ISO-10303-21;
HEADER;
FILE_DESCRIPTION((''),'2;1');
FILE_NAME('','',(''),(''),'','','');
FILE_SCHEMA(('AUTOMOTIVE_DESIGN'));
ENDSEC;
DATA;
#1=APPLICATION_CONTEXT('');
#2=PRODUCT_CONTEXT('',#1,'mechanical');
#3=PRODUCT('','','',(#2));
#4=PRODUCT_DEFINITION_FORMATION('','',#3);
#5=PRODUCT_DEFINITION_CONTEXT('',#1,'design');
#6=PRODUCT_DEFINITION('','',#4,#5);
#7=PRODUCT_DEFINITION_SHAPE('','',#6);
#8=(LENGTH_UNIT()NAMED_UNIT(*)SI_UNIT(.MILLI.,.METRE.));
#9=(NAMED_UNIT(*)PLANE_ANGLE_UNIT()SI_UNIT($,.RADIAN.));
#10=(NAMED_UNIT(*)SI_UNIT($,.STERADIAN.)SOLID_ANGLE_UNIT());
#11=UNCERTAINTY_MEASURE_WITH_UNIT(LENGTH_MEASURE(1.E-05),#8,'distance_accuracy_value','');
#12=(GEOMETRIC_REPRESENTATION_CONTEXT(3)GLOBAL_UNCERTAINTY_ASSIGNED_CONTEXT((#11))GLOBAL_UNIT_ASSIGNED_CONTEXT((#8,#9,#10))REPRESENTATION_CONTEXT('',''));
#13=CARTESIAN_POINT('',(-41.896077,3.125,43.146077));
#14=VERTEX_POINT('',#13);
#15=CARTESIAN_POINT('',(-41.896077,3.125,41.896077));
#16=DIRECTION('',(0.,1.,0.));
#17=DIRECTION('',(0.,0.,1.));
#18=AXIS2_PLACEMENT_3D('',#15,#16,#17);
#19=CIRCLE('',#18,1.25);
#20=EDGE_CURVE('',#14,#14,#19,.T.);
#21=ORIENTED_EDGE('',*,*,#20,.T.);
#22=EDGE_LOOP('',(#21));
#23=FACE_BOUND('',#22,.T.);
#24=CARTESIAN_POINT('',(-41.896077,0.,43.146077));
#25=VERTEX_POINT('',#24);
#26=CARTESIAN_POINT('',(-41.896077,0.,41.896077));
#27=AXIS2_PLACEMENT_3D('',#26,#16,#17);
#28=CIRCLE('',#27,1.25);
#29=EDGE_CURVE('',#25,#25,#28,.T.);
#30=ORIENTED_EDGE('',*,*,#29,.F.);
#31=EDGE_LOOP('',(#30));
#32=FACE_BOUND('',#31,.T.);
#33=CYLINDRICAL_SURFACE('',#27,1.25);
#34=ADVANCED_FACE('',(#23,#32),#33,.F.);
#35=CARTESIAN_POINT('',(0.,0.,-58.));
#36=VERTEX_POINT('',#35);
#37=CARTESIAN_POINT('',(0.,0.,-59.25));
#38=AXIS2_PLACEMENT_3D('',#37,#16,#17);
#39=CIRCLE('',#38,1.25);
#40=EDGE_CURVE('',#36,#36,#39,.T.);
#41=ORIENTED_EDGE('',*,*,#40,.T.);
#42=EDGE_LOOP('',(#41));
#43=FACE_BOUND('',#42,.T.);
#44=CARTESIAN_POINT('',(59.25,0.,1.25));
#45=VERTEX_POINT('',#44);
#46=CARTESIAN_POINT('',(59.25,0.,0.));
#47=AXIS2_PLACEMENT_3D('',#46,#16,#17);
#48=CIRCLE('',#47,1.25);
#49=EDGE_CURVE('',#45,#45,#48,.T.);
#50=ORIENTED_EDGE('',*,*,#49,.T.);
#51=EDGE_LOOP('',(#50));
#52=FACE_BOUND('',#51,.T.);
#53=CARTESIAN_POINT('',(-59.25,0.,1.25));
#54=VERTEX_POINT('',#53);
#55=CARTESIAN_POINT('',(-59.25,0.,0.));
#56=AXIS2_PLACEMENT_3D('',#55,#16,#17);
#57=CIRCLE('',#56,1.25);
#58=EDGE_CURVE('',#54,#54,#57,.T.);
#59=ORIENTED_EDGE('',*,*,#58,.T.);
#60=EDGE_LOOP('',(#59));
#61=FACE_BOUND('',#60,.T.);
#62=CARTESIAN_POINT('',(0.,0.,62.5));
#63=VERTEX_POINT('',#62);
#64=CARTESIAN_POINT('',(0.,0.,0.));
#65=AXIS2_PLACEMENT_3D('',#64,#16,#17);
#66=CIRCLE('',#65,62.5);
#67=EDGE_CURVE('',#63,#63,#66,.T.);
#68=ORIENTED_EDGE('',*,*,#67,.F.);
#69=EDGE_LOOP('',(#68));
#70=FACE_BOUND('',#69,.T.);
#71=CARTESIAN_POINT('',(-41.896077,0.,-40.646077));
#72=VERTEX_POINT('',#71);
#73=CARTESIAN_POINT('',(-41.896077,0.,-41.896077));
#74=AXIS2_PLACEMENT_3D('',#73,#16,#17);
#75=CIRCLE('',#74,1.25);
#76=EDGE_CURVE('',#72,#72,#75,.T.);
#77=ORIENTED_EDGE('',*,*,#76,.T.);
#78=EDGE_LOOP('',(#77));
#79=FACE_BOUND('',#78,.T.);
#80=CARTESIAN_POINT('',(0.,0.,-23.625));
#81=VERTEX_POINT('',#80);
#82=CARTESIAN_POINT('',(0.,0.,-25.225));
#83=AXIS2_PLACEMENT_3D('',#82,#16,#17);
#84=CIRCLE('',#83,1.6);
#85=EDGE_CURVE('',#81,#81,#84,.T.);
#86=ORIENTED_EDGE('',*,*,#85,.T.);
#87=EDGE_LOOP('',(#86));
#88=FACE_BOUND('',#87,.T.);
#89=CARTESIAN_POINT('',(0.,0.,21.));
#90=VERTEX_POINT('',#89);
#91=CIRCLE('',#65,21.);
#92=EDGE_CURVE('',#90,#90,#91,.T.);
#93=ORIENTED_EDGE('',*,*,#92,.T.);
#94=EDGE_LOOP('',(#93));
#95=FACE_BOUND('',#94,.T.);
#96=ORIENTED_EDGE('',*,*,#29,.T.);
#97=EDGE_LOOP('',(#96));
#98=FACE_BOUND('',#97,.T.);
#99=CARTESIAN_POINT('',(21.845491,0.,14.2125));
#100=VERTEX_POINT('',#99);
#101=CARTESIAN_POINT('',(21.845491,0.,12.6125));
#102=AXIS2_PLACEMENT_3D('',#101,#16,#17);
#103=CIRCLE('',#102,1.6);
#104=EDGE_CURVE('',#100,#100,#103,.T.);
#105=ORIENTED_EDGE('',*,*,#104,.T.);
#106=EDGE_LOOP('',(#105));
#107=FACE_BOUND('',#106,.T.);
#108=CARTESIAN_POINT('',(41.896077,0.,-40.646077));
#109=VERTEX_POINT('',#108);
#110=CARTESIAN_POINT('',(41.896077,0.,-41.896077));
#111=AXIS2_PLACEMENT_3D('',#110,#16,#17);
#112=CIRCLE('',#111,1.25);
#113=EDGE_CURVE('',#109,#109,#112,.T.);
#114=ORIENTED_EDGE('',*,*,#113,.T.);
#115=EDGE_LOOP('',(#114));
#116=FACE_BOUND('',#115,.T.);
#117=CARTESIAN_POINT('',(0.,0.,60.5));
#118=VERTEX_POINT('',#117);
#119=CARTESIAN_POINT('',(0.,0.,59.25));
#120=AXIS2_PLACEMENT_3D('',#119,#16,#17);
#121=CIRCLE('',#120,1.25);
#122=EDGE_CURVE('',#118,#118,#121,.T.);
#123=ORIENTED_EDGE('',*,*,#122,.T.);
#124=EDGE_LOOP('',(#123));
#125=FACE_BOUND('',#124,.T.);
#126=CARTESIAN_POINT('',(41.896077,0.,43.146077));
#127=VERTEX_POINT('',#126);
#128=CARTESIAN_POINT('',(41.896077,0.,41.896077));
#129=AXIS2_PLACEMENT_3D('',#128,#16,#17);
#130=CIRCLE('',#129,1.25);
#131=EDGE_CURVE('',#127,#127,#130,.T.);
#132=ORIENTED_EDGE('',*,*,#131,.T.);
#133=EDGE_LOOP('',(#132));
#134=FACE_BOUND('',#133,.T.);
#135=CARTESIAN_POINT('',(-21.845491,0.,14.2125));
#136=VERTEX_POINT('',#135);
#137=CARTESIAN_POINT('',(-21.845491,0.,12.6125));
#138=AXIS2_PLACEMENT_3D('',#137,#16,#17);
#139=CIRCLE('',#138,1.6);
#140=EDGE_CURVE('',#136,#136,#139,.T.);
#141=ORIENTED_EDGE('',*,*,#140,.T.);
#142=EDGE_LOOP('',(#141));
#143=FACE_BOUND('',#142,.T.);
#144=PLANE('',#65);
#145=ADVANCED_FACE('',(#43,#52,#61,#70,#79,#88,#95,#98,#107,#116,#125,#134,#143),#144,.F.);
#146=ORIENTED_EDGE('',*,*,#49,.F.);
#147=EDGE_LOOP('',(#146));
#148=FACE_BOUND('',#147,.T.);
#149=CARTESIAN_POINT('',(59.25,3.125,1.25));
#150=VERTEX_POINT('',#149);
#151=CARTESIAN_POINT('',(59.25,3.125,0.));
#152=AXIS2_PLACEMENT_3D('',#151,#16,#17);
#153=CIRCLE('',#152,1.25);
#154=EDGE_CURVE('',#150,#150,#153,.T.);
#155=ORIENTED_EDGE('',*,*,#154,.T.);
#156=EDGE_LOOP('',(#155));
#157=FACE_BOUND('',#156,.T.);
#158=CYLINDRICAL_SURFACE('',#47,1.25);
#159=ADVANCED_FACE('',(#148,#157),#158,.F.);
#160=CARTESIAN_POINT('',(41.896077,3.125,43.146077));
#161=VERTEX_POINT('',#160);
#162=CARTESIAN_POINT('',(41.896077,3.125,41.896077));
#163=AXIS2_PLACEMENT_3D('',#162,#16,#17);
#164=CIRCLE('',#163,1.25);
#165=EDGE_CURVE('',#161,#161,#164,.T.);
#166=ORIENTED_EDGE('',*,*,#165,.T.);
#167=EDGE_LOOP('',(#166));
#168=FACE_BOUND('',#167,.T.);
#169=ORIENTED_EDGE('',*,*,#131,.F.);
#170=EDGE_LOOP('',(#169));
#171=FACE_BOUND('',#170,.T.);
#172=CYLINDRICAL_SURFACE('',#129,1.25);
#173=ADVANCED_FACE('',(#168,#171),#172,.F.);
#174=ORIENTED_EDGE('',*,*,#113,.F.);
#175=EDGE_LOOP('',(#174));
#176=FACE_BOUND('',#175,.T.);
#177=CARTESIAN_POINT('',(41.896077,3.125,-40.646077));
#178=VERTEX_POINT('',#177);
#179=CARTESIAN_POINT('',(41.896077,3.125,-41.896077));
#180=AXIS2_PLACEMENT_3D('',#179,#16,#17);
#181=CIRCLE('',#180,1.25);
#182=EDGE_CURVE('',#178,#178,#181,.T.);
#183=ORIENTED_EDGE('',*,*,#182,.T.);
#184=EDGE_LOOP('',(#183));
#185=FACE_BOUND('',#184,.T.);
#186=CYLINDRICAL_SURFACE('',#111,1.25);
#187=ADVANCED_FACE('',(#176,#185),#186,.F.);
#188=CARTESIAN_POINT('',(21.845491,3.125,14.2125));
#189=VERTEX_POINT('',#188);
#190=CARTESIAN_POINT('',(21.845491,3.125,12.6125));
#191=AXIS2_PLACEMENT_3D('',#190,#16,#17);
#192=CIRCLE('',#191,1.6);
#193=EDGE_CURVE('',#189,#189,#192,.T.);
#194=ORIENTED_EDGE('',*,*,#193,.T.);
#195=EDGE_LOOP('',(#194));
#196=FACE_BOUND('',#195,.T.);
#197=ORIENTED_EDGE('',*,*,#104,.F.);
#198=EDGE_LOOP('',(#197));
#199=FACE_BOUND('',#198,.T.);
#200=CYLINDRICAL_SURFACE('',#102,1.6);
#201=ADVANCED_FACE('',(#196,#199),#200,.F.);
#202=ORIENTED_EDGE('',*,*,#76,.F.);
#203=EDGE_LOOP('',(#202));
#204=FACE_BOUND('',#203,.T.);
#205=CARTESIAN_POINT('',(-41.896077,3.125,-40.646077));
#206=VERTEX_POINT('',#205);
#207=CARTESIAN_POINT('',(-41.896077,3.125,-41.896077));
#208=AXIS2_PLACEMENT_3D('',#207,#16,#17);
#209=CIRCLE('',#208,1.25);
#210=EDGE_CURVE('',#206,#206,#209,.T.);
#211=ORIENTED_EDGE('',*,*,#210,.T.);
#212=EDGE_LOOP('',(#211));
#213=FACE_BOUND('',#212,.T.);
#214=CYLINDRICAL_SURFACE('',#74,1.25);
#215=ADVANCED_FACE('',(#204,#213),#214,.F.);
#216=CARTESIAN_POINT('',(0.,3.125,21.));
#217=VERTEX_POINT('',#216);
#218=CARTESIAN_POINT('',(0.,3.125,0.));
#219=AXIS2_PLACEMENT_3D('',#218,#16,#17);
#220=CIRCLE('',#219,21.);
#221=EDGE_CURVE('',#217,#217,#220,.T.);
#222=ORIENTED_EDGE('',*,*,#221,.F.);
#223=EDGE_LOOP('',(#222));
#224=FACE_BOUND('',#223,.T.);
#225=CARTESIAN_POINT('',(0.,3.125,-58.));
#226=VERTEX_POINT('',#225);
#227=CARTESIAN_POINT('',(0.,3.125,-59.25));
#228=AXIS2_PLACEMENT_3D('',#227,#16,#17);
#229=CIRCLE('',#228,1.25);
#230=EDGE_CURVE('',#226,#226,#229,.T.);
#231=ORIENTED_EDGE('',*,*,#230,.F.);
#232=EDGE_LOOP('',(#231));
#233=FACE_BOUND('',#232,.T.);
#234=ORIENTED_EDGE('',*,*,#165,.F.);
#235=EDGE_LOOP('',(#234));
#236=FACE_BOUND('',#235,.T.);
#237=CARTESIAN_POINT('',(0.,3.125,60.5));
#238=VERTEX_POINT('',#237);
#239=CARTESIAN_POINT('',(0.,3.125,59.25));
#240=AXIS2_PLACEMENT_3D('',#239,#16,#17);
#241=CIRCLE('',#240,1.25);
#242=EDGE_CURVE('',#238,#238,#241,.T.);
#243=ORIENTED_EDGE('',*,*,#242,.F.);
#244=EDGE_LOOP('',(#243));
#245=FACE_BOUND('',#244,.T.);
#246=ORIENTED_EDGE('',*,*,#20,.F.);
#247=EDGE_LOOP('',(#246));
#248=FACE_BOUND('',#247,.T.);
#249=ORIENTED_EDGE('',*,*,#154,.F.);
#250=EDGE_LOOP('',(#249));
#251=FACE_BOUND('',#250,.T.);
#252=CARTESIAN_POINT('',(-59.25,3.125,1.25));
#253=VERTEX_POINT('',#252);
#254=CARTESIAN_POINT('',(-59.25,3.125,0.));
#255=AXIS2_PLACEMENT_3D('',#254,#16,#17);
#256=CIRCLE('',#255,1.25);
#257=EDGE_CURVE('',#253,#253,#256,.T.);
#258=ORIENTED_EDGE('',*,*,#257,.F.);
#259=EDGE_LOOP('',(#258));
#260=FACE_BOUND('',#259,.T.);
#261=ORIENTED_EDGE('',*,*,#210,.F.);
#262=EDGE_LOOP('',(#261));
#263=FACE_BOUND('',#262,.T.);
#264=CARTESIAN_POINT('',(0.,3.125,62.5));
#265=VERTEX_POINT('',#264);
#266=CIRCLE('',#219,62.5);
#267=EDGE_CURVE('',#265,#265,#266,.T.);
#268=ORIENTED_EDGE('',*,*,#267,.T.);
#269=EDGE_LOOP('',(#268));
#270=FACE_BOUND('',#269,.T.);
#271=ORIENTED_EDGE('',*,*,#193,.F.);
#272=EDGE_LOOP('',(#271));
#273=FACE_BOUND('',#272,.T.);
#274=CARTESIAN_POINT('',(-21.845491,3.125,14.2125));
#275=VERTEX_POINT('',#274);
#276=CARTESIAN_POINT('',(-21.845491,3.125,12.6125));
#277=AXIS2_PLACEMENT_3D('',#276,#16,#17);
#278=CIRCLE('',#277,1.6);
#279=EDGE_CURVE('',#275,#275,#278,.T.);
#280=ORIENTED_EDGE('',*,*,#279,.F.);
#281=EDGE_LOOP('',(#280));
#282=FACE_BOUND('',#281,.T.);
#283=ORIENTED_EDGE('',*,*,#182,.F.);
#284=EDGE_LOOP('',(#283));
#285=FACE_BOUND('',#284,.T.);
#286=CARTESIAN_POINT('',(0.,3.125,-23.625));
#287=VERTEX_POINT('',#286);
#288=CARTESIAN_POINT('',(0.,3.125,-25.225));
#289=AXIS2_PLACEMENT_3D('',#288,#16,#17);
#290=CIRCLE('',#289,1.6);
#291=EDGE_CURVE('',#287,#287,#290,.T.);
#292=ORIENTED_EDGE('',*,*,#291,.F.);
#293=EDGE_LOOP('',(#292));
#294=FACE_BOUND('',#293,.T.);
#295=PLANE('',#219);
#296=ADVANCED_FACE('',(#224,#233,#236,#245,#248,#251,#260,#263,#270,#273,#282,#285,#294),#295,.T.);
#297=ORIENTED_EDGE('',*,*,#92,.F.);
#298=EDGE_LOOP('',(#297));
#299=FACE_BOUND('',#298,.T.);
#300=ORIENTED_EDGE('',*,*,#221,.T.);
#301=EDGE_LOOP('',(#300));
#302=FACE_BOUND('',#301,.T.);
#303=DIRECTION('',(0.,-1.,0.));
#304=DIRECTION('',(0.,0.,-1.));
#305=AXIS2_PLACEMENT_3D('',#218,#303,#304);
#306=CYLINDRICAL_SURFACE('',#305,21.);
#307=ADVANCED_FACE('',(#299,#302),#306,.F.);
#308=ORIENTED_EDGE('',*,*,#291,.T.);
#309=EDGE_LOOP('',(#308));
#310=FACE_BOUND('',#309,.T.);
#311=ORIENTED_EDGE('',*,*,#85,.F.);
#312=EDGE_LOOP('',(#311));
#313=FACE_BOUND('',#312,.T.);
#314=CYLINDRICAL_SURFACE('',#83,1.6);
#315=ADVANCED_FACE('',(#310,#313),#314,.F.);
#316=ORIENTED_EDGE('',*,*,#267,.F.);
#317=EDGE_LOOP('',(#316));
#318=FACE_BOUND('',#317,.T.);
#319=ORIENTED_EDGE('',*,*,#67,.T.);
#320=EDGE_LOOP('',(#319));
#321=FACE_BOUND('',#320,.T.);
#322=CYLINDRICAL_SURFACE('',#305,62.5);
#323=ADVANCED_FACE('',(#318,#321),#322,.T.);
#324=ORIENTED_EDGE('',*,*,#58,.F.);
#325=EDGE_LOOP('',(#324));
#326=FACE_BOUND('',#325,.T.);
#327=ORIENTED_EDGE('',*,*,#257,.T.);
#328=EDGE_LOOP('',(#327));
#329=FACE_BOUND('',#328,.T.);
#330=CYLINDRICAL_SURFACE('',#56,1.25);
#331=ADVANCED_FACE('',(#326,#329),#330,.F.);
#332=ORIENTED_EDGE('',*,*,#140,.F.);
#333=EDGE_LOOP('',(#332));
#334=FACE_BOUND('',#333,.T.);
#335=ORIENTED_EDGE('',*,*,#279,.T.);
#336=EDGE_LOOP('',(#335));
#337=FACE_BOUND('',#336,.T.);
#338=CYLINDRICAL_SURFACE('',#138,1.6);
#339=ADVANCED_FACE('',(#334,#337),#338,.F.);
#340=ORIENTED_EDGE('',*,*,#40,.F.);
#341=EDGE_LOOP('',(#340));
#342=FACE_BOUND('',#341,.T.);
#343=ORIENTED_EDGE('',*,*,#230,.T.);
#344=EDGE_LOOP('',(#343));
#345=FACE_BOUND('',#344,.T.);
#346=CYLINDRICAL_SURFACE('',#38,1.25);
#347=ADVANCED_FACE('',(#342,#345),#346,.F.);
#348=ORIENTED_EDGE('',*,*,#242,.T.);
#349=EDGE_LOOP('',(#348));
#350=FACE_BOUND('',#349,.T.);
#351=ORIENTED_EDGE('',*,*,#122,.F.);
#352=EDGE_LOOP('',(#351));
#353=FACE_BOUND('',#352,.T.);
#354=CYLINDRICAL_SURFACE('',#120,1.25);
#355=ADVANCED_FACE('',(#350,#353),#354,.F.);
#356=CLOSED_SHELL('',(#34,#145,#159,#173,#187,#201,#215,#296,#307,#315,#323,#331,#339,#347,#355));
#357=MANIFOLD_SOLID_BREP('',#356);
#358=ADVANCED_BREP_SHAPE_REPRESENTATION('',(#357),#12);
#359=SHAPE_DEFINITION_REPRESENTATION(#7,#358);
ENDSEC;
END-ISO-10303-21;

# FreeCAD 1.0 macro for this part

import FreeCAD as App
import Part
import Sketcher

V = App.Vector

doc = App.newDocument("Part")
body = doc.addObject("PartDesign::Body", "Body")

# Sketch on XZ plane
sketch1 = body.newObject("Sketcher::SketchObject", "Sketch")
sketch1.AttachmentSupport = (doc.getObject("XZ_Plane"), [""])
sketch1.MapMode = "FlatFace"
sketch1.addGeometry(Part.Circle(V(0, 0, 0), V(0, 0, 1), 62.5), False)
sketch1.addGeometry(Part.Circle(V(0, 0, 0), V(0, 0, 1), 21), False)
sketch1.addConstraint(Sketcher.Constraint("Coincident", 0, 3, -1, 1))
sketch1.addConstraint(Sketcher.Constraint("Coincident", 1, 3, -1, 1))
sketch1.addConstraint(Sketcher.Constraint("Diameter", 0, 125.0))
sketch1.addConstraint(Sketcher.Constraint("Diameter", 1, 42.0))
pad1 = body.newObject("PartDesign::Pad", "Pad")
pad1.Profile = sketch1
pad1.Length = 3.125
pad1.Reversed = True

# Sketch on XZ plane
sketch2 = body.newObject("Sketcher::SketchObject", "Sketch001")
sketch2.AttachmentSupport = (doc.getObject("XZ_Plane"), [""])
sketch2.MapMode = "FlatFace"
sketch2.AttachmentOffset = App.Placement(V(0, 0, -3.125), App.Rotation())
sketch2.addGeometry(Part.Circle(V(0, -25.225, 0), V(0, 0, 1), 1.6), False)
sketch2.addGeometry(Part.Circle(V(21.845491, 12.6125, 0), V(0, 0, 1), 1.6), False)
sketch2.addGeometry(Part.Circle(V(-21.845491, 12.6125, 0), V(0, 0, 1), 1.6), False)
sketch2.addConstraint(Sketcher.Constraint("Equal", 0, 1))
sketch2.addConstraint(Sketcher.Constraint("Equal", 1, 2))
sketch2.addConstraint(Sketcher.Constraint("Symmetric", 1, 3, 2, 3, -2))
sketch2.addConstraint(Sketcher.Constraint("PointOnObject", 0, 3, -2))
sketch2.addConstraint(Sketcher.Constraint("Diameter", 0, 3.2))
sketch2.addConstraint(Sketcher.Constraint("DistanceY", 0, 3, -1, 1, 25.225))
sketch2.addConstraint(Sketcher.Constraint("DistanceY", -1, 1, 1, 3, 12.6125))
sketch2.addConstraint(Sketcher.Constraint("DistanceX", -1, 1, 1, 3, 21.845491))
pocket1 = body.newObject("PartDesign::Pocket", "Pocket")
pocket1.Profile = sketch2
pocket1.Type = "ThroughAll"
pocket1.Reversed = True

# Sketch on XZ plane
sketch3 = body.newObject("Sketcher::SketchObject", "Sketch002")
sketch3.AttachmentSupport = (doc.getObject("XZ_Plane"), [""])
sketch3.MapMode = "FlatFace"
sketch3.AttachmentOffset = App.Placement(V(0, 0, -3.125), App.Rotation())
sketch3.addGeometry(Part.Circle(V(-41.896077, -41.896077, 0), V(0, 0, 1), 1.25), False)
sketch3.addGeometry(Part.Circle(V(41.896077, -41.896077, 0), V(0, 0, 1), 1.25), False)
sketch3.addGeometry(Part.Circle(V(-41.896077, 41.896077, 0), V(0, 0, 1), 1.25), False)
sketch3.addGeometry(Part.Circle(V(41.896077, 41.896077, 0), V(0, 0, 1), 1.25), False)
sketch3.addGeometry(Part.Circle(V(-59.25, 0, 0), V(0, 0, 1), 1.25), False)
sketch3.addGeometry(Part.Circle(V(59.25, 0, 0), V(0, 0, 1), 1.25), False)
sketch3.addGeometry(Part.Circle(V(0, -59.25, 0), V(0, 0, 1), 1.25), False)
sketch3.addGeometry(Part.Circle(V(0, 59.25, 0), V(0, 0, 1), 1.25), False)
sketch3.addConstraint(Sketcher.Constraint("Equal", 0, 1))
sketch3.addConstraint(Sketcher.Constraint("Equal", 1, 2))
sketch3.addConstraint(Sketcher.Constraint("Equal", 2, 3))
sketch3.addConstraint(Sketcher.Constraint("Equal", 3, 4))
sketch3.addConstraint(Sketcher.Constraint("Equal", 4, 5))
sketch3.addConstraint(Sketcher.Constraint("Equal", 5, 6))
sketch3.addConstraint(Sketcher.Constraint("Equal", 6, 7))
sketch3.addConstraint(Sketcher.Constraint("Symmetric", 1, 3, 2, 3, -1, 1))
sketch3.addConstraint(Sketcher.Constraint("Symmetric", 0, 3, 3, 3, -1, 1))
sketch3.addConstraint(Sketcher.Constraint("Symmetric", 4, 3, 5, 3, -1, 1))
sketch3.addConstraint(Sketcher.Constraint("Symmetric", 6, 3, 7, 3, -1, 1))
sketch3.addConstraint(Sketcher.Constraint("Symmetric", 0, 3, 1, 3, -2))
sketch3.addConstraint(Sketcher.Constraint("PointOnObject", 4, 3, -1))
sketch3.addConstraint(Sketcher.Constraint("PointOnObject", 6, 3, -2))
sketch3.addConstraint(Sketcher.Constraint("Diameter", 0, 2.5))
sketch3.addConstraint(Sketcher.Constraint("DistanceX", 4, 3, 5, 3, 118.5))
sketch3.addConstraint(Sketcher.Constraint("DistanceY", 6, 3, -1, 1, 59.25))
sketch3.addConstraint(Sketcher.Constraint("DistanceX", 0, 3, -1, 1, 41.896077))
sketch3.addConstraint(Sketcher.Constraint("DistanceY", 0, 3, -1, 1, 41.896077))
pocket2 = body.newObject("PartDesign::Pocket", "Pocket001")
pocket2.Profile = sketch3
pocket2.Type = "ThroughAll"
pocket2.Reversed = True

doc.recompute()
